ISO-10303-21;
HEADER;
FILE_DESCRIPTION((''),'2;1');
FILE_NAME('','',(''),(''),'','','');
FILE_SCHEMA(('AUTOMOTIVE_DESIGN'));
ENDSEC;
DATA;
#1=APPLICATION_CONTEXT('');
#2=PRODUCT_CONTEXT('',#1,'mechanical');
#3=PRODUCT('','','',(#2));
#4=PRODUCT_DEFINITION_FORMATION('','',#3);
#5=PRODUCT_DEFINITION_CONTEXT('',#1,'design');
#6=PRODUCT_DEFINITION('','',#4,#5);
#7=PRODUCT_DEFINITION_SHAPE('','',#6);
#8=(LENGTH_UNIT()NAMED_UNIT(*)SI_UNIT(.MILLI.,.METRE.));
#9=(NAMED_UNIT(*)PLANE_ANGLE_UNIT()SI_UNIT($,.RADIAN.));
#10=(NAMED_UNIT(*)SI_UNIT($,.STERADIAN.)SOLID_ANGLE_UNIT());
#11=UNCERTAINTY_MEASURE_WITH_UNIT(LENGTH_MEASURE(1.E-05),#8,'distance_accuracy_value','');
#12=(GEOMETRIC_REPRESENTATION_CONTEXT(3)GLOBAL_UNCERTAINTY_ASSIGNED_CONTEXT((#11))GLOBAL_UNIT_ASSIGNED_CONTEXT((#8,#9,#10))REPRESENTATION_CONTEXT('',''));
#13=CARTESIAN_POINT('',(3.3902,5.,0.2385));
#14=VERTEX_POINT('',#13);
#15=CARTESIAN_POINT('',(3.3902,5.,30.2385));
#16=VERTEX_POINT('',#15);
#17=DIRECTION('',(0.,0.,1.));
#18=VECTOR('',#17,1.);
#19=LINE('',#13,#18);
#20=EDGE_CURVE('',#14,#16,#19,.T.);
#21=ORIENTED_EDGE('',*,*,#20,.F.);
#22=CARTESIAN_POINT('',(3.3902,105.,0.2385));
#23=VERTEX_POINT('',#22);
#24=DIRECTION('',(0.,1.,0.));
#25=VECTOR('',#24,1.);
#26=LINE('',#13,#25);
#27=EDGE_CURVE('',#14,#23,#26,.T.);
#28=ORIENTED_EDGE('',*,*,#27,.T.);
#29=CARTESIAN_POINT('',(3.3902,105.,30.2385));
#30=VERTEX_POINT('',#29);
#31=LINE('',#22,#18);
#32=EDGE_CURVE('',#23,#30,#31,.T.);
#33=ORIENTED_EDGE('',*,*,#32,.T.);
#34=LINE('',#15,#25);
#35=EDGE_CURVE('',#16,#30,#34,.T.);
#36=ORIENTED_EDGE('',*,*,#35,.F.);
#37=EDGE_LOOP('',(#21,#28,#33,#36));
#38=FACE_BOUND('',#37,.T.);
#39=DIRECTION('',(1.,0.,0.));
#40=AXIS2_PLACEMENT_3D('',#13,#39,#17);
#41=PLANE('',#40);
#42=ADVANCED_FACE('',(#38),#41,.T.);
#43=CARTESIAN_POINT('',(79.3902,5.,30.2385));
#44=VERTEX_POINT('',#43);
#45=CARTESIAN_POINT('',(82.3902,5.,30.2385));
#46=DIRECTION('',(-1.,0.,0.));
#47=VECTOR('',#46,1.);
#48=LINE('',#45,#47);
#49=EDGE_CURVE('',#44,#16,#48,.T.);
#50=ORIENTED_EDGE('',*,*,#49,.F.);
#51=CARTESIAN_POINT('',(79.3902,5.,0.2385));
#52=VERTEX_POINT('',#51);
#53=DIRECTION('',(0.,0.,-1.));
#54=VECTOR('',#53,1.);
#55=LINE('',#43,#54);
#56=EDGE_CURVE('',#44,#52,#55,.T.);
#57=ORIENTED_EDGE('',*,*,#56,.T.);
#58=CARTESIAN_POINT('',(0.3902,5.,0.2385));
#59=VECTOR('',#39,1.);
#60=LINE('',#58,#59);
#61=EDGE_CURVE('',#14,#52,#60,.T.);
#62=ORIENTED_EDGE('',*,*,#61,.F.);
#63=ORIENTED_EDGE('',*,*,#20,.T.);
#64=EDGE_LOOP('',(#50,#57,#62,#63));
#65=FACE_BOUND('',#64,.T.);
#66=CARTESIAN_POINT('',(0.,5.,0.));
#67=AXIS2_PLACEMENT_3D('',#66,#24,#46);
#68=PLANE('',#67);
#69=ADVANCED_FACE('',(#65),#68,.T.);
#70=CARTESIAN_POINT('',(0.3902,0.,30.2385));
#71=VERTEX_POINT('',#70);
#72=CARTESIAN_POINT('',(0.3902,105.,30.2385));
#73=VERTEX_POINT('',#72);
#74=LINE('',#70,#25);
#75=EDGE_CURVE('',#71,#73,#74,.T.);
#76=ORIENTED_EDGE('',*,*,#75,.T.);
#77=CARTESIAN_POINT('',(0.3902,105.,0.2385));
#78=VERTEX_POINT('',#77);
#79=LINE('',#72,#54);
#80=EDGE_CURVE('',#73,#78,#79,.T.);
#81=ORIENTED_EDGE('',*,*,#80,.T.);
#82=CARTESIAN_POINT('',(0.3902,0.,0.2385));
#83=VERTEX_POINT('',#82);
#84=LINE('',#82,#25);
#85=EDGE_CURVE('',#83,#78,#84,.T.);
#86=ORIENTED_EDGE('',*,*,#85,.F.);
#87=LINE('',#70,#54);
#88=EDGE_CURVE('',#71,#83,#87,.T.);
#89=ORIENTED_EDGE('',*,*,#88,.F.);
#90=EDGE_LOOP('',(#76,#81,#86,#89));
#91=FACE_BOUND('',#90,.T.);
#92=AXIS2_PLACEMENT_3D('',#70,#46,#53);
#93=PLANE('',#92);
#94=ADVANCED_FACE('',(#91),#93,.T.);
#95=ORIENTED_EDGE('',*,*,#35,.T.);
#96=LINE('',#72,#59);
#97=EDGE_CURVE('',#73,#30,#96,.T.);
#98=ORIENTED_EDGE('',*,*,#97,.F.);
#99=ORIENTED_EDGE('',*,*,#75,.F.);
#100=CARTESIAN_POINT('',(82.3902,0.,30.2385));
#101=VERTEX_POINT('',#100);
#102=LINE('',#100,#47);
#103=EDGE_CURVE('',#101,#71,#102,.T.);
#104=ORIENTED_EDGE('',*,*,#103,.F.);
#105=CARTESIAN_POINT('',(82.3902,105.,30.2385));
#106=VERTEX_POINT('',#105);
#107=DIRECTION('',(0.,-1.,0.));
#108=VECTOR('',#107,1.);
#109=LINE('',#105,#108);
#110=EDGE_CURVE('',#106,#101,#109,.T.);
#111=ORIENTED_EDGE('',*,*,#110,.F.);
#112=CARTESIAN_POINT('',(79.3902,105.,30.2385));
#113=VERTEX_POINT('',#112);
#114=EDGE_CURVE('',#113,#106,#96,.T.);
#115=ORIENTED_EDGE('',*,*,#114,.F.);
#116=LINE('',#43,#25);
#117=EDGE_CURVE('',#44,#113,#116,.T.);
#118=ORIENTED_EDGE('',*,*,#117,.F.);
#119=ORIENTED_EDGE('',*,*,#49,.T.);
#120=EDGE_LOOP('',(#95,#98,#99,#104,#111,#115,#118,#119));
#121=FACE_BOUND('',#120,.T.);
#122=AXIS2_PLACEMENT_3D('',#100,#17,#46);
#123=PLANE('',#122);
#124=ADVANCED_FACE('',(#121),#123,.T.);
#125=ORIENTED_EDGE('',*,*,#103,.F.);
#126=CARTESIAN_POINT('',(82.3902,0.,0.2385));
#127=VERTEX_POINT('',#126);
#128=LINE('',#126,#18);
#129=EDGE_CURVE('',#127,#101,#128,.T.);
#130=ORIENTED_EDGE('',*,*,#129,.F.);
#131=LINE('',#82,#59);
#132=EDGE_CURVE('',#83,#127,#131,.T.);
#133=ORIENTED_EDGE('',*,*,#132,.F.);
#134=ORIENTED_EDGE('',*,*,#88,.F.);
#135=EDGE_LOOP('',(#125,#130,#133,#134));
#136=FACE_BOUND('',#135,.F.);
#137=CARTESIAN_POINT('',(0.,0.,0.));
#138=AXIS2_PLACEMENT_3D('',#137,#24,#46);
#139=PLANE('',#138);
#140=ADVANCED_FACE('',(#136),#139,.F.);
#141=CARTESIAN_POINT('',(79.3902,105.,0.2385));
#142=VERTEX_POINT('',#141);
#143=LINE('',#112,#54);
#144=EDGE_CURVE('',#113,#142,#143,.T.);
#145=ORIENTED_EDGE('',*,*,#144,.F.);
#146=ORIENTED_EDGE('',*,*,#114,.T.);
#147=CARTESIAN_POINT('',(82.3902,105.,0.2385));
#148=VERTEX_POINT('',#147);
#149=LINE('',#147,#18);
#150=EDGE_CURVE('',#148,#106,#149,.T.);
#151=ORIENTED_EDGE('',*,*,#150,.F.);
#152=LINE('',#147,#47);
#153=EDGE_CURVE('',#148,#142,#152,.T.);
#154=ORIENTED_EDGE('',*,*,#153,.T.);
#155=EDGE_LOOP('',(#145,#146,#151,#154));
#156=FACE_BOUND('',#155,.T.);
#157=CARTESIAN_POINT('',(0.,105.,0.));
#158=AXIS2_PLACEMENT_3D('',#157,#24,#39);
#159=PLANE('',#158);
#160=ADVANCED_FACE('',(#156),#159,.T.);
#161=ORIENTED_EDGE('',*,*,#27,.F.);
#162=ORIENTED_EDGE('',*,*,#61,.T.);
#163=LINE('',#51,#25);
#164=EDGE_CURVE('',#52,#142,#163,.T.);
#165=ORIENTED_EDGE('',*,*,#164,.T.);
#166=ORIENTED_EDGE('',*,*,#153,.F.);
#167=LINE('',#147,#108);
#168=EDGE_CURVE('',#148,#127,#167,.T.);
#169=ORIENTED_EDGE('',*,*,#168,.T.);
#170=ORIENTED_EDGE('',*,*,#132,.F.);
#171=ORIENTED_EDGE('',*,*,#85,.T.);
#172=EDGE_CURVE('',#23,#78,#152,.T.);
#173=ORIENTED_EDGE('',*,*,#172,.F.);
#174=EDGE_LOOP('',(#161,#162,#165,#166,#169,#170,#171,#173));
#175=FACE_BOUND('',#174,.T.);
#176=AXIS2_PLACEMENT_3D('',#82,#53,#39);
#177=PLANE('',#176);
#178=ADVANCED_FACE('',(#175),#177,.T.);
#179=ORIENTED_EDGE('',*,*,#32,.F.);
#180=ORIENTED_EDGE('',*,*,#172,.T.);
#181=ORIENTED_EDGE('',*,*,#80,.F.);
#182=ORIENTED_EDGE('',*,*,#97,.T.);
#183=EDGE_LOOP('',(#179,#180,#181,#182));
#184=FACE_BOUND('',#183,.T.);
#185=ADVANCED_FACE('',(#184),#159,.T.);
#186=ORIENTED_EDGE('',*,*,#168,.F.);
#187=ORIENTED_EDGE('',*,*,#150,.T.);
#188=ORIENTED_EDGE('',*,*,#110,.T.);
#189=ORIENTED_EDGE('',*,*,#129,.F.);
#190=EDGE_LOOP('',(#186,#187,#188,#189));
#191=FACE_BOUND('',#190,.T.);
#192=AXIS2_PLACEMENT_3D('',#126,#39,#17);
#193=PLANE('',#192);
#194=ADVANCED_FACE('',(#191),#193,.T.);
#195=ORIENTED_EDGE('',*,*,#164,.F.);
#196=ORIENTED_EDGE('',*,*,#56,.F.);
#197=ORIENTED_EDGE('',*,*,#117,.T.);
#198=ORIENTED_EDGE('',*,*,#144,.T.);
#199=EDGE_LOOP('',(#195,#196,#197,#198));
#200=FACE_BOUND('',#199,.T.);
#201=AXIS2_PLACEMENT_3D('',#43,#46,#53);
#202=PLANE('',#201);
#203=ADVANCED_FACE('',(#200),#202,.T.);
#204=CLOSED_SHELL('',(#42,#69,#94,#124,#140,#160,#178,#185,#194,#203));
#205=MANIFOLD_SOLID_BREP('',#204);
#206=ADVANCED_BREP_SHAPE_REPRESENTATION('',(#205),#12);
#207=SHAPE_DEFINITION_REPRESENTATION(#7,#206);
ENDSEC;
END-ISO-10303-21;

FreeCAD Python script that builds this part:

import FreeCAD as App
import Part
import Sketcher
Q = App.Units.Quantity


def add_polygon(sketch, points):
    """Adds a closed chain of lines whose ends are joined by coincident constraints."""
    first, n = sketch.GeometryCount, len(points)
    for a, b in zip(points, points[1:] + points[:1]):
        sketch.addGeometry(Part.LineSegment(App.Vector(*a, 0), App.Vector(*b, 0)), False)
    for i in range(n):
        sketch.addConstraint(Sketcher.Constraint("Coincident", first + i, 2, first + (i + 1) % n, 1))

doc = App.newDocument("Part")
body = doc.addObject("PartDesign::Body", "Body")

sketch1 = body.newObject("Sketcher::SketchObject", "Sketch")
sketch1.AttachmentSupport = (doc.getObject("XZ_Plane"), [""])
sketch1.MapMode = "FlatFace"
add_polygon(sketch1, [(82, 0), (0, 0), (0, 30), (82, 30)])
sketch1.addConstraint(Sketcher.Constraint("Horizontal", 0))
sketch1.addConstraint(Sketcher.Constraint("Vertical", 1))
sketch1.addConstraint(Sketcher.Constraint("Horizontal", 2))
sketch1.addConstraint(Sketcher.Constraint("Vertical", 3))
sketch1.addConstraint(Sketcher.Constraint("DistanceX", 0, 2, 0, 1, Q("82 mm")))
sketch1.addConstraint(Sketcher.Constraint("DistanceY", 1, 1, 1, 2, Q("30 mm")))
sketch1.addConstraint(Sketcher.Constraint("DistanceX", -1, 1, 0, 2, Q("0.3902 mm")))
sketch1.addConstraint(Sketcher.Constraint("DistanceY", -1, 1, 0, 2, Q("0.2385 mm")))
pad1 = body.newObject("PartDesign::Pad", "Pad")
pad1.Profile = sketch1
pad1.Length = 5
pad1.Reversed = True

sketch2 = body.newObject("Sketcher::SketchObject", "Sketch001")
sketch2.AttachmentSupport = (doc.getObject("XZ_Plane"), [""])
sketch2.MapMode = "FlatFace"
sketch2.AttachmentOffset = App.Placement(App.Vector(0, 0, -5), App.Rotation())
add_polygon(sketch2, [(82.4, 30.2), (82.4, 0.2), (79.4, 0.2), (79.4, 30.2)])
add_polygon(sketch2, [(3.4, 30.2), (3.4, 0.2), (0.4, 0.2), (0.4, 30.2)])
sketch2.addConstraint(Sketcher.Constraint("Vertical", 0))
sketch2.addConstraint(Sketcher.Constraint("Horizontal", 1))
sketch2.addConstraint(Sketcher.Constraint("Vertical", 2))
sketch2.addConstraint(Sketcher.Constraint("Horizontal", 3))
sketch2.addConstraint(Sketcher.Constraint("Vertical", 4))
sketch2.addConstraint(Sketcher.Constraint("Horizontal", 5))
sketch2.addConstraint(Sketcher.Constraint("Vertical", 6))
sketch2.addConstraint(Sketcher.Constraint("Horizontal", 7))
sketch2.addConstraint(Sketcher.Constraint("Horizontal", 1, 2, 4, 2))
sketch2.addConstraint(Sketcher.Constraint("Horizontal", 3, 2, 6, 2))
sketch2.addConstraint(Sketcher.Constraint("Equal", 3, 5))
sketch2.addConstraint(Sketcher.Constraint("DistanceX", 1, 2, 1, 1, Q("3 mm")))
sketch2.addConstraint(Sketcher.Constraint("DistanceY", 0, 2, 0, 1, Q("30 mm")))
sketch2.addConstraint(Sketcher.Constraint("DistanceX", 4, 2, 1, 2, Q("76 mm")))
sketch2.addConstraint(Sketcher.Constraint("DistanceX", -1, 1, 0, 2, Q("82.3902 mm")))
sketch2.addConstraint(Sketcher.Constraint("DistanceY", -1, 1, 0, 2, Q("0.2385 mm")))
pad2 = body.newObject("PartDesign::Pad", "Pad001")
pad2.Profile = sketch2
pad2.Length = 100
pad2.Reversed = True

doc.recompute()
